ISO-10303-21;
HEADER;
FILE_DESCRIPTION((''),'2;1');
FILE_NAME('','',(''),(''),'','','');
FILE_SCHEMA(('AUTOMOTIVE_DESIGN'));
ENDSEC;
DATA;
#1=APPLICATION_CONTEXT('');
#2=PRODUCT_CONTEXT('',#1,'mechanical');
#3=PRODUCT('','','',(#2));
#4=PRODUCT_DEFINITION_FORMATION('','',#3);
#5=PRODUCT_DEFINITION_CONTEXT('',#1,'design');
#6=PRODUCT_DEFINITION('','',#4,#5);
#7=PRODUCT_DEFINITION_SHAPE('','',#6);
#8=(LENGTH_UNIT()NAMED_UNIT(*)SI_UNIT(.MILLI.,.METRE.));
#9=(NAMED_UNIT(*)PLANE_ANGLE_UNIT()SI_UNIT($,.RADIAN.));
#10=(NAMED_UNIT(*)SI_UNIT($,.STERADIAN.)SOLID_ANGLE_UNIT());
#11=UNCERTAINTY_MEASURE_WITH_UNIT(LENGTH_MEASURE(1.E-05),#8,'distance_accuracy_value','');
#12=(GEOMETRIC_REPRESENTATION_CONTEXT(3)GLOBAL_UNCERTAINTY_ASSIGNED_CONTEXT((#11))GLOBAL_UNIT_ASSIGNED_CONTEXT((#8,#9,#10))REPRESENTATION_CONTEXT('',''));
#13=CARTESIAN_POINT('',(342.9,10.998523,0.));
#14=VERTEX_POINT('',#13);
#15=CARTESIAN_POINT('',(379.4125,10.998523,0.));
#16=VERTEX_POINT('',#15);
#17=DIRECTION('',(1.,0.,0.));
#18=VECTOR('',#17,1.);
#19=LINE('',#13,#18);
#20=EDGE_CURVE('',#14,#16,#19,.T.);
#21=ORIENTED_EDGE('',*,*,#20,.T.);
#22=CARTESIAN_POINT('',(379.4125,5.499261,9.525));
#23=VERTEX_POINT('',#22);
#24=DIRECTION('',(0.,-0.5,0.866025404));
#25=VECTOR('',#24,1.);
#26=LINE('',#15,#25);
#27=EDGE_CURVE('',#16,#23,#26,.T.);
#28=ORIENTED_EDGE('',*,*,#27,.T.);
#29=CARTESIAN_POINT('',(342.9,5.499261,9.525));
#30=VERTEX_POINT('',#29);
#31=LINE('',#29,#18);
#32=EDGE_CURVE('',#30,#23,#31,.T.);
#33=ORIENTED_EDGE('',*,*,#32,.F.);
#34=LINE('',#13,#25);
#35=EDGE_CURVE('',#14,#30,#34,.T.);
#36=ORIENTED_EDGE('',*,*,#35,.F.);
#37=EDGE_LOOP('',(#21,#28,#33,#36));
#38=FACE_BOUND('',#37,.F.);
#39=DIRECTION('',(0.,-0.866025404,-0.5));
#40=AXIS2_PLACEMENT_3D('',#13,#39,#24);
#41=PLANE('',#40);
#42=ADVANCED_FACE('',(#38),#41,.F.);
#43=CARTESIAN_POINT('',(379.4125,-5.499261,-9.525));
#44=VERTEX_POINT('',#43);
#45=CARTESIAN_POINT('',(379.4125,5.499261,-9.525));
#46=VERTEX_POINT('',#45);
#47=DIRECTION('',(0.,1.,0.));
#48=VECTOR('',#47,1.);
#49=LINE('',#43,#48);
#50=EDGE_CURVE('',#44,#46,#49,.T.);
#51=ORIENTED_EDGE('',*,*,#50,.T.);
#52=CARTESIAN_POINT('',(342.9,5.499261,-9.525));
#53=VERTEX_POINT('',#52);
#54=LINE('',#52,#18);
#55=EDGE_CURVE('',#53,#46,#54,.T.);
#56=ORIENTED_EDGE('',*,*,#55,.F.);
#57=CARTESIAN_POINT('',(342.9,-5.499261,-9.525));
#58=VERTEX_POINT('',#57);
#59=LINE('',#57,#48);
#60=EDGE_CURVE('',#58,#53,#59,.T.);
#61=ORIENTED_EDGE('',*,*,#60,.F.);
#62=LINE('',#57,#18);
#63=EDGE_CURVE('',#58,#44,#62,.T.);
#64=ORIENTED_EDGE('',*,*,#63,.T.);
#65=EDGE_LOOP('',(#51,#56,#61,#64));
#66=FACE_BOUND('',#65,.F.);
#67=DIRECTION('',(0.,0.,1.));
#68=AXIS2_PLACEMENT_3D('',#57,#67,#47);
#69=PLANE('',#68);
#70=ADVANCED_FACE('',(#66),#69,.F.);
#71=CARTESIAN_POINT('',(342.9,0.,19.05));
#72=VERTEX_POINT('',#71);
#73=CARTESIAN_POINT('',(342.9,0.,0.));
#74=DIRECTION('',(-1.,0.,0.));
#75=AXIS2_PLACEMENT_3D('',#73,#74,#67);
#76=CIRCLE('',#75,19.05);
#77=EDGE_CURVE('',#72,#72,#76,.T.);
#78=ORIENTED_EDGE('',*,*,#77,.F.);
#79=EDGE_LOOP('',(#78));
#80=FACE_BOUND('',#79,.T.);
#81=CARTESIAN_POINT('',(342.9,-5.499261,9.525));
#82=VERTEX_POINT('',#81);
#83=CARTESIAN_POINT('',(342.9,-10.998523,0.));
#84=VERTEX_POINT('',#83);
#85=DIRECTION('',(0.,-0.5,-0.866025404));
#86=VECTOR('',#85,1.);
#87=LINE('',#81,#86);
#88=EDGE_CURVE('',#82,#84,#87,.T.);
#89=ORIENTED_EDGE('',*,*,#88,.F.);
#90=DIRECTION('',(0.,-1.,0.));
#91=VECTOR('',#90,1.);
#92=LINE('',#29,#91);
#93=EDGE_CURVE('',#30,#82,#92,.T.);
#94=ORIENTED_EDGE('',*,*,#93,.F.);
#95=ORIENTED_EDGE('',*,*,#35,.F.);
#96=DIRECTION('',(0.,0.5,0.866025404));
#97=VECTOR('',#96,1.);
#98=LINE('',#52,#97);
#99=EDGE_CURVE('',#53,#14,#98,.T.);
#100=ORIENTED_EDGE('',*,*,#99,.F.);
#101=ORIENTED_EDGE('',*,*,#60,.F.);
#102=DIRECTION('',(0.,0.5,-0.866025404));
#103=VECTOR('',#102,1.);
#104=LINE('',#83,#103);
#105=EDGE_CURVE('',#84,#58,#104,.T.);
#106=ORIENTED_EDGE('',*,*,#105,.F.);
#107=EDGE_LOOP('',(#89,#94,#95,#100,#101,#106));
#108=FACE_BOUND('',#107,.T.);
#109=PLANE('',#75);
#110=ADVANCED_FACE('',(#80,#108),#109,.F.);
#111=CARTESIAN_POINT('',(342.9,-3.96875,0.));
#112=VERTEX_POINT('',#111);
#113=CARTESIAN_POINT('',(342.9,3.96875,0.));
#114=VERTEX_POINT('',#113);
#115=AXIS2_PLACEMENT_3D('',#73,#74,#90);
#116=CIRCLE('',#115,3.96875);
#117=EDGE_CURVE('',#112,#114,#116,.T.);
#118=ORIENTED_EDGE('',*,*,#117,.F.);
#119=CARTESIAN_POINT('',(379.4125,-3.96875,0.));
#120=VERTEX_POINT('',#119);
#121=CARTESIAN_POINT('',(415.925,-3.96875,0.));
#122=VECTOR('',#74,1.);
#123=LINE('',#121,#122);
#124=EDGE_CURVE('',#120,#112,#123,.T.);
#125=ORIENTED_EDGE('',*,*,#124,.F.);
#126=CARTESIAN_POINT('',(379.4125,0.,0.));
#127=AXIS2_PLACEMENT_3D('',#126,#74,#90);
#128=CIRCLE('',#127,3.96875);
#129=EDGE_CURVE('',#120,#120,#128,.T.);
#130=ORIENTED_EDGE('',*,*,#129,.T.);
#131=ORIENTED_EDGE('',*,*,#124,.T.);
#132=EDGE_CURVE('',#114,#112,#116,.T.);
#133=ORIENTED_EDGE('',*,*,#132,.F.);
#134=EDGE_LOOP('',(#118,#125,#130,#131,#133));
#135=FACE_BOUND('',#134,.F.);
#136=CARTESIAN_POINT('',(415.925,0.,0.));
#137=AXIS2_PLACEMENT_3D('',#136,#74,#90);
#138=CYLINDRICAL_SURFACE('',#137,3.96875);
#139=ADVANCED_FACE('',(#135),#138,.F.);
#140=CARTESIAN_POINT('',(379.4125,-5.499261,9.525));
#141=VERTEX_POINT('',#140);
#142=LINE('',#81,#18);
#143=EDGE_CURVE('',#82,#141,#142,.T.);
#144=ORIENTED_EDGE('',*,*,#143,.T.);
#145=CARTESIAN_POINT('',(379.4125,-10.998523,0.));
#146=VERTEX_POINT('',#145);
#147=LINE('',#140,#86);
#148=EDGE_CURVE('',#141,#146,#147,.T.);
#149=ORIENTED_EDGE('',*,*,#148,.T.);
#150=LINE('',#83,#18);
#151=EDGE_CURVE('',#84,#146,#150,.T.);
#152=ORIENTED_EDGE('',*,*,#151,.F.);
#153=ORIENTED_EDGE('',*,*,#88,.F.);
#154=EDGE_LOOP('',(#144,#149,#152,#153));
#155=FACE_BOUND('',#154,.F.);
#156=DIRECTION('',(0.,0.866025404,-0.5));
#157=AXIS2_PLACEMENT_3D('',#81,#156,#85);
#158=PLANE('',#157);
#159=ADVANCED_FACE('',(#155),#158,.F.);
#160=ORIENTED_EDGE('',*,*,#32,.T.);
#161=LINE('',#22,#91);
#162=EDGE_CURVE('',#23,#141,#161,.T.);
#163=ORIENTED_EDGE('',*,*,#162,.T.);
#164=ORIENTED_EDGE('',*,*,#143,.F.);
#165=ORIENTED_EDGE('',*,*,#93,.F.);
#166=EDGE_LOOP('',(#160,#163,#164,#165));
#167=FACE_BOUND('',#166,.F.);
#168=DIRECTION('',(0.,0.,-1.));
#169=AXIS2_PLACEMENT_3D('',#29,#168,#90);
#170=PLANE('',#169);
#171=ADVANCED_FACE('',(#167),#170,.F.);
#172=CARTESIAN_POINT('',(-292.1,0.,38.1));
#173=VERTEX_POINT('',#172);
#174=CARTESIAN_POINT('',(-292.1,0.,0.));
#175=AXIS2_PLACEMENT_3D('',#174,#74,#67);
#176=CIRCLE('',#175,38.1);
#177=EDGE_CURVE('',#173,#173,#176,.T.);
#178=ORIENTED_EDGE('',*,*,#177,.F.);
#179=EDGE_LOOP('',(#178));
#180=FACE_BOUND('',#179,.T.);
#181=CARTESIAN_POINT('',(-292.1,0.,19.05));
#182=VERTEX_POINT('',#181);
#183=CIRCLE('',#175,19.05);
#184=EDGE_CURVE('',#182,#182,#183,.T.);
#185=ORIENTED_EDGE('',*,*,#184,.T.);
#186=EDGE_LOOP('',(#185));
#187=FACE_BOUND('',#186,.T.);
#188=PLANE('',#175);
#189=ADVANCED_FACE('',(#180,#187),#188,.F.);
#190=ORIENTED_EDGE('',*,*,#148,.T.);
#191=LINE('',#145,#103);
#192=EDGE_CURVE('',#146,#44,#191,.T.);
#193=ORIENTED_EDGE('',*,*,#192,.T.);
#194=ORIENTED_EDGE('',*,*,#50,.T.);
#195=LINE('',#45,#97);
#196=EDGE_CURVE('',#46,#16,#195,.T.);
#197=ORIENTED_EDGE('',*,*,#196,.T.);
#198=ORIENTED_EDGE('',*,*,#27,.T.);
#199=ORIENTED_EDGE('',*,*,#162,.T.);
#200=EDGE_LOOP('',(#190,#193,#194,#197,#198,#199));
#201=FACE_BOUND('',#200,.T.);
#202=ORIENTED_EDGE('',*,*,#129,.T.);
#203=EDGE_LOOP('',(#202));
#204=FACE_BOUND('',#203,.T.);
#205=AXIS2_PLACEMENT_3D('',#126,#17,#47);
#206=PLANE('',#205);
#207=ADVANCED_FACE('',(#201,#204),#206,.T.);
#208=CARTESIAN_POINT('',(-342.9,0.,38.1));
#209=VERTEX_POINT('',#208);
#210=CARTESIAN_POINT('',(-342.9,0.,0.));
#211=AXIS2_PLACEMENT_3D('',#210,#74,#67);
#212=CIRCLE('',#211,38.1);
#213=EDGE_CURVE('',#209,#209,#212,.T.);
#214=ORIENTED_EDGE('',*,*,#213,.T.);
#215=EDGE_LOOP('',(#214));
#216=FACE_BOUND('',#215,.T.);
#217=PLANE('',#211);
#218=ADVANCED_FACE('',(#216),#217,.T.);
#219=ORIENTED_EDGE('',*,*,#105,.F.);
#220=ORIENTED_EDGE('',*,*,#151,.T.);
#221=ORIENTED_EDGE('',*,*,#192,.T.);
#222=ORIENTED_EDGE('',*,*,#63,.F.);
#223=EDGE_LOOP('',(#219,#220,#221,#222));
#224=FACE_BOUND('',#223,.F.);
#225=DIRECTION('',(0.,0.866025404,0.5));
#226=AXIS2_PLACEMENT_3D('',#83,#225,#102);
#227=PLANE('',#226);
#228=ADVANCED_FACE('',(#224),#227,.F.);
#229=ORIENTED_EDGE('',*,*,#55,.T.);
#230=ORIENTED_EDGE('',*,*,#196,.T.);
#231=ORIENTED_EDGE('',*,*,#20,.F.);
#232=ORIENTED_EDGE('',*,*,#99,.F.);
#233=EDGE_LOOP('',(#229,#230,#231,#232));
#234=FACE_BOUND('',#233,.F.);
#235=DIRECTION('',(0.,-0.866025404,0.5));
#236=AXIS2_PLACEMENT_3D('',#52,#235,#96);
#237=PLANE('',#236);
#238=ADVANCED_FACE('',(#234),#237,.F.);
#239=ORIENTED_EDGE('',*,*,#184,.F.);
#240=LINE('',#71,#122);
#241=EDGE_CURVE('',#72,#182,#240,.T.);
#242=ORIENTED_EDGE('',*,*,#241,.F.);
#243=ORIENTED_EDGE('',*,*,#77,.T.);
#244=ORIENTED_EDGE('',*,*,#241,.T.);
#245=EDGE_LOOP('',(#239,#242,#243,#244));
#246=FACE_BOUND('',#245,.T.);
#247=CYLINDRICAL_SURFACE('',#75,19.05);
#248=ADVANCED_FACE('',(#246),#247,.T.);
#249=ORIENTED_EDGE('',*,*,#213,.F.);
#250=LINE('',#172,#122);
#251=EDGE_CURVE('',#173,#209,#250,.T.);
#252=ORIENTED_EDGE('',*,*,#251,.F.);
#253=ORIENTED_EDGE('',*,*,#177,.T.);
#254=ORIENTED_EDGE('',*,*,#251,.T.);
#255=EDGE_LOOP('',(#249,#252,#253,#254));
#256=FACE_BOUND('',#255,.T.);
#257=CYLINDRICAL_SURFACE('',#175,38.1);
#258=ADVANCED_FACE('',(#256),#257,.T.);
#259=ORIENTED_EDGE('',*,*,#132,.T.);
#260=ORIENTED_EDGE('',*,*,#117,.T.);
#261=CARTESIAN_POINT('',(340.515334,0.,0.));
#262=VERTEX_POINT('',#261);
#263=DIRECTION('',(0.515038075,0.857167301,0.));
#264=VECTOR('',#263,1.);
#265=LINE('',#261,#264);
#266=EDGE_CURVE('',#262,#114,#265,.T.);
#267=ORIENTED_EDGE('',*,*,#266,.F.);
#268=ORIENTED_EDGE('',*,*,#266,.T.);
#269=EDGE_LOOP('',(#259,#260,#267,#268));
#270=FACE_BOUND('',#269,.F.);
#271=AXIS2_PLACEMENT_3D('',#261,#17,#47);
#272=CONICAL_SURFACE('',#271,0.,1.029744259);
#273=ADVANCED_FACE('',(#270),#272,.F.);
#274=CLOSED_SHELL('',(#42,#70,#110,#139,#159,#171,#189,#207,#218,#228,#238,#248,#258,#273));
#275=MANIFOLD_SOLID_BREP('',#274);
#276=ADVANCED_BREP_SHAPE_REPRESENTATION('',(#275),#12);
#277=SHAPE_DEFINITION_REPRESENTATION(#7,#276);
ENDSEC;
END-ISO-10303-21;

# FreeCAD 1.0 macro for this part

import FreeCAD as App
import Part
import Sketcher
from FreeCAD import Vector
Q = App.Units.Quantity


def add_polygon(sketch, points):
    """Adds a closed chain of lines whose ends are joined by coincident constraints."""
    first, n = sketch.GeometryCount, len(points)
    for a, b in zip(points, points[1:] + points[:1]):
        sketch.addGeometry(Part.LineSegment(App.Vector(*a, 0), App.Vector(*b, 0)), False)
    for i in range(n):
        sketch.addConstraint(Sketcher.Constraint("Coincident", first + i, 2, first + (i + 1) % n, 1))

doc = App.newDocument("Part")
params = doc.addObject("Spreadsheet::Sheet", "Params")
for row, (alias, value) in enumerate([
    ("sketch1_width", "27 in"),
    ("sketch1_width2", "25 in"),
    ("sketch1_height", "1.5 in"),
    ("revolution_angle", "360 deg"),
    ("pad1_length", "1.4375 in"),
    ("sketch3_diameter", "0.3125 in"),
    ("hole_diameter", "0.3125 in"),
    ("hole_depth", "1.4375 in"),
], start=1):
    params.set(f"A{row}", alias)
    params.set(f"B{row}", "=" + value)
    params.setAlias(f"B{row}", alias)

body = doc.addObject("PartDesign::Body", "Body")

# Sketch on XZ plane
sketch1 = doc.addObject("Sketcher::SketchObject", "Sketch")
body.addObject(sketch1)
sketch1.AttachmentSupport = (doc.XZ_Plane, [""])
sketch1.MapMode = "FlatFace"
add_polygon(sketch1, [(-343, 38), (-343, 0), (343, 0), (343, 19), (-292, 19), (-292, 38)])  # lines 0-5
sketch1.addConstraint(Sketcher.Constraint("Vertical", 0))
sketch1.addConstraint(Sketcher.Constraint("Horizontal", 1))
sketch1.addConstraint(Sketcher.Constraint("Vertical", 2))
sketch1.addConstraint(Sketcher.Constraint("Horizontal", 3))
sketch1.addConstraint(Sketcher.Constraint("Vertical", 4))
sketch1.addConstraint(Sketcher.Constraint("Horizontal", 5))
sketch1.addConstraint(Sketcher.Constraint("Symmetric", 0, 2, 1, 2, -1, 1))
sketch1.addConstraint(Sketcher.Constraint("Equal", 2, 4))
sketch1.addConstraint(Sketcher.Constraint("DistanceX", 1, 1, 1, 2, Q("27 in")))
sketch1.addConstraint(Sketcher.Constraint("DistanceX", 3, 2, 3, 1, Q("25 in")))
sketch1.addConstraint(Sketcher.Constraint("DistanceY", 0, 2, 0, 1, Q("1.5 in")))
sketch1.setExpression("Constraints[14]", "Params.sketch1_width")
sketch1.setExpression("Constraints[15]", "Params.sketch1_width2")
sketch1.setExpression("Constraints[16]", "Params.sketch1_height")
revolution = doc.addObject("PartDesign::Revolution", "Revolution")
body.addObject(revolution)
revolution.Profile = sketch1
revolution.ReferenceAxis = (sketch1, ["H_Axis"])
revolution.setExpression("Angle", "Params.revolution_angle")

# Sketch on YZ plane
sketch2 = doc.addObject("Sketcher::SketchObject", "Sketch001")
body.addObject(sketch2)
sketch2.AttachmentSupport = (doc.YZ_Plane, [""])
sketch2.MapMode = "FlatFace"
sketch2.AttachmentOffset = App.Placement(Vector(0, 0, 13.5 * 25.4), App.Rotation())
add_polygon(sketch2, [(5, 10), (-5, 10), (-11, 0), (-5, -10), (5, -10), (11, 0)])  # lines 0-5
sketch2.addConstraint(Sketcher.Constraint("Horizontal", 0))
sketch2.addConstraint(Sketcher.Constraint("Horizontal", 3))
sketch2.addConstraint(Sketcher.Constraint("Symmetric", 0, 2, 3, 2, -1, 1))
sketch2.addConstraint(Sketcher.Constraint("Symmetric", 1, 2, 4, 2, -1, 1))
sketch2.addConstraint(Sketcher.Constraint("PointOnObject", 1, 2, -1))
sketch2.addConstraint(Sketcher.Constraint("Parallel", 2, 5))
sketch2.addConstraint(Sketcher.Constraint("Vertical", 0, 2, 2, 2))
sketch2.addConstraint(Sketcher.Constraint("Angle", 1, Q("-120 deg")))
sketch2.addConstraint(Sketcher.Constraint("DistanceY", 2, 2, 0, 2, Q("0.75 in")))
sketch2.addConstraint(Sketcher.Constraint("DistanceX", 0, 2, 0, 1, 10.998523))
pad1 = doc.addObject("PartDesign::Pad", "Pad")
body.addObject(pad1)
pad1.Profile = sketch2
pad1.setExpression("Length", "Params.pad1_length")

# Sketch on YZ plane
sketch3 = doc.addObject("Sketcher::SketchObject", "Sketch002")
body.addObject(sketch3)
sketch3.AttachmentSupport = (doc.YZ_Plane, [""])
sketch3.MapMode = "FlatFace"
sketch3.AttachmentOffset = App.Placement(Vector(0, 0, 14.9375 * 25.4), App.Rotation())
sketch3.addGeometry(Part.Circle(Vector(0, 0, 0), Vector(0, 0, 1), 4), False)
sketch3.addConstraint(Sketcher.Constraint("Coincident", 0, 3, -1, 1))
sketch3.addConstraint(Sketcher.Constraint("Diameter", 0, Q("0.3125 in")))
sketch3.setExpression("Constraints[1]", "Params.sketch3_diameter")
doc.recompute()
hole = doc.addObject("PartDesign::Hole", "Hole")
body.addObject(hole)
hole.Profile = sketch3
hole.ThreadType = "None"
hole.setExpression("Diameter", "Params.hole_diameter")
hole.DepthType = "Dimension"
hole.setExpression("Depth", "Params.hole_depth")
hole.DrillPoint = "Angled"
hole.DrillPointAngle = 118

doc.recompute()
